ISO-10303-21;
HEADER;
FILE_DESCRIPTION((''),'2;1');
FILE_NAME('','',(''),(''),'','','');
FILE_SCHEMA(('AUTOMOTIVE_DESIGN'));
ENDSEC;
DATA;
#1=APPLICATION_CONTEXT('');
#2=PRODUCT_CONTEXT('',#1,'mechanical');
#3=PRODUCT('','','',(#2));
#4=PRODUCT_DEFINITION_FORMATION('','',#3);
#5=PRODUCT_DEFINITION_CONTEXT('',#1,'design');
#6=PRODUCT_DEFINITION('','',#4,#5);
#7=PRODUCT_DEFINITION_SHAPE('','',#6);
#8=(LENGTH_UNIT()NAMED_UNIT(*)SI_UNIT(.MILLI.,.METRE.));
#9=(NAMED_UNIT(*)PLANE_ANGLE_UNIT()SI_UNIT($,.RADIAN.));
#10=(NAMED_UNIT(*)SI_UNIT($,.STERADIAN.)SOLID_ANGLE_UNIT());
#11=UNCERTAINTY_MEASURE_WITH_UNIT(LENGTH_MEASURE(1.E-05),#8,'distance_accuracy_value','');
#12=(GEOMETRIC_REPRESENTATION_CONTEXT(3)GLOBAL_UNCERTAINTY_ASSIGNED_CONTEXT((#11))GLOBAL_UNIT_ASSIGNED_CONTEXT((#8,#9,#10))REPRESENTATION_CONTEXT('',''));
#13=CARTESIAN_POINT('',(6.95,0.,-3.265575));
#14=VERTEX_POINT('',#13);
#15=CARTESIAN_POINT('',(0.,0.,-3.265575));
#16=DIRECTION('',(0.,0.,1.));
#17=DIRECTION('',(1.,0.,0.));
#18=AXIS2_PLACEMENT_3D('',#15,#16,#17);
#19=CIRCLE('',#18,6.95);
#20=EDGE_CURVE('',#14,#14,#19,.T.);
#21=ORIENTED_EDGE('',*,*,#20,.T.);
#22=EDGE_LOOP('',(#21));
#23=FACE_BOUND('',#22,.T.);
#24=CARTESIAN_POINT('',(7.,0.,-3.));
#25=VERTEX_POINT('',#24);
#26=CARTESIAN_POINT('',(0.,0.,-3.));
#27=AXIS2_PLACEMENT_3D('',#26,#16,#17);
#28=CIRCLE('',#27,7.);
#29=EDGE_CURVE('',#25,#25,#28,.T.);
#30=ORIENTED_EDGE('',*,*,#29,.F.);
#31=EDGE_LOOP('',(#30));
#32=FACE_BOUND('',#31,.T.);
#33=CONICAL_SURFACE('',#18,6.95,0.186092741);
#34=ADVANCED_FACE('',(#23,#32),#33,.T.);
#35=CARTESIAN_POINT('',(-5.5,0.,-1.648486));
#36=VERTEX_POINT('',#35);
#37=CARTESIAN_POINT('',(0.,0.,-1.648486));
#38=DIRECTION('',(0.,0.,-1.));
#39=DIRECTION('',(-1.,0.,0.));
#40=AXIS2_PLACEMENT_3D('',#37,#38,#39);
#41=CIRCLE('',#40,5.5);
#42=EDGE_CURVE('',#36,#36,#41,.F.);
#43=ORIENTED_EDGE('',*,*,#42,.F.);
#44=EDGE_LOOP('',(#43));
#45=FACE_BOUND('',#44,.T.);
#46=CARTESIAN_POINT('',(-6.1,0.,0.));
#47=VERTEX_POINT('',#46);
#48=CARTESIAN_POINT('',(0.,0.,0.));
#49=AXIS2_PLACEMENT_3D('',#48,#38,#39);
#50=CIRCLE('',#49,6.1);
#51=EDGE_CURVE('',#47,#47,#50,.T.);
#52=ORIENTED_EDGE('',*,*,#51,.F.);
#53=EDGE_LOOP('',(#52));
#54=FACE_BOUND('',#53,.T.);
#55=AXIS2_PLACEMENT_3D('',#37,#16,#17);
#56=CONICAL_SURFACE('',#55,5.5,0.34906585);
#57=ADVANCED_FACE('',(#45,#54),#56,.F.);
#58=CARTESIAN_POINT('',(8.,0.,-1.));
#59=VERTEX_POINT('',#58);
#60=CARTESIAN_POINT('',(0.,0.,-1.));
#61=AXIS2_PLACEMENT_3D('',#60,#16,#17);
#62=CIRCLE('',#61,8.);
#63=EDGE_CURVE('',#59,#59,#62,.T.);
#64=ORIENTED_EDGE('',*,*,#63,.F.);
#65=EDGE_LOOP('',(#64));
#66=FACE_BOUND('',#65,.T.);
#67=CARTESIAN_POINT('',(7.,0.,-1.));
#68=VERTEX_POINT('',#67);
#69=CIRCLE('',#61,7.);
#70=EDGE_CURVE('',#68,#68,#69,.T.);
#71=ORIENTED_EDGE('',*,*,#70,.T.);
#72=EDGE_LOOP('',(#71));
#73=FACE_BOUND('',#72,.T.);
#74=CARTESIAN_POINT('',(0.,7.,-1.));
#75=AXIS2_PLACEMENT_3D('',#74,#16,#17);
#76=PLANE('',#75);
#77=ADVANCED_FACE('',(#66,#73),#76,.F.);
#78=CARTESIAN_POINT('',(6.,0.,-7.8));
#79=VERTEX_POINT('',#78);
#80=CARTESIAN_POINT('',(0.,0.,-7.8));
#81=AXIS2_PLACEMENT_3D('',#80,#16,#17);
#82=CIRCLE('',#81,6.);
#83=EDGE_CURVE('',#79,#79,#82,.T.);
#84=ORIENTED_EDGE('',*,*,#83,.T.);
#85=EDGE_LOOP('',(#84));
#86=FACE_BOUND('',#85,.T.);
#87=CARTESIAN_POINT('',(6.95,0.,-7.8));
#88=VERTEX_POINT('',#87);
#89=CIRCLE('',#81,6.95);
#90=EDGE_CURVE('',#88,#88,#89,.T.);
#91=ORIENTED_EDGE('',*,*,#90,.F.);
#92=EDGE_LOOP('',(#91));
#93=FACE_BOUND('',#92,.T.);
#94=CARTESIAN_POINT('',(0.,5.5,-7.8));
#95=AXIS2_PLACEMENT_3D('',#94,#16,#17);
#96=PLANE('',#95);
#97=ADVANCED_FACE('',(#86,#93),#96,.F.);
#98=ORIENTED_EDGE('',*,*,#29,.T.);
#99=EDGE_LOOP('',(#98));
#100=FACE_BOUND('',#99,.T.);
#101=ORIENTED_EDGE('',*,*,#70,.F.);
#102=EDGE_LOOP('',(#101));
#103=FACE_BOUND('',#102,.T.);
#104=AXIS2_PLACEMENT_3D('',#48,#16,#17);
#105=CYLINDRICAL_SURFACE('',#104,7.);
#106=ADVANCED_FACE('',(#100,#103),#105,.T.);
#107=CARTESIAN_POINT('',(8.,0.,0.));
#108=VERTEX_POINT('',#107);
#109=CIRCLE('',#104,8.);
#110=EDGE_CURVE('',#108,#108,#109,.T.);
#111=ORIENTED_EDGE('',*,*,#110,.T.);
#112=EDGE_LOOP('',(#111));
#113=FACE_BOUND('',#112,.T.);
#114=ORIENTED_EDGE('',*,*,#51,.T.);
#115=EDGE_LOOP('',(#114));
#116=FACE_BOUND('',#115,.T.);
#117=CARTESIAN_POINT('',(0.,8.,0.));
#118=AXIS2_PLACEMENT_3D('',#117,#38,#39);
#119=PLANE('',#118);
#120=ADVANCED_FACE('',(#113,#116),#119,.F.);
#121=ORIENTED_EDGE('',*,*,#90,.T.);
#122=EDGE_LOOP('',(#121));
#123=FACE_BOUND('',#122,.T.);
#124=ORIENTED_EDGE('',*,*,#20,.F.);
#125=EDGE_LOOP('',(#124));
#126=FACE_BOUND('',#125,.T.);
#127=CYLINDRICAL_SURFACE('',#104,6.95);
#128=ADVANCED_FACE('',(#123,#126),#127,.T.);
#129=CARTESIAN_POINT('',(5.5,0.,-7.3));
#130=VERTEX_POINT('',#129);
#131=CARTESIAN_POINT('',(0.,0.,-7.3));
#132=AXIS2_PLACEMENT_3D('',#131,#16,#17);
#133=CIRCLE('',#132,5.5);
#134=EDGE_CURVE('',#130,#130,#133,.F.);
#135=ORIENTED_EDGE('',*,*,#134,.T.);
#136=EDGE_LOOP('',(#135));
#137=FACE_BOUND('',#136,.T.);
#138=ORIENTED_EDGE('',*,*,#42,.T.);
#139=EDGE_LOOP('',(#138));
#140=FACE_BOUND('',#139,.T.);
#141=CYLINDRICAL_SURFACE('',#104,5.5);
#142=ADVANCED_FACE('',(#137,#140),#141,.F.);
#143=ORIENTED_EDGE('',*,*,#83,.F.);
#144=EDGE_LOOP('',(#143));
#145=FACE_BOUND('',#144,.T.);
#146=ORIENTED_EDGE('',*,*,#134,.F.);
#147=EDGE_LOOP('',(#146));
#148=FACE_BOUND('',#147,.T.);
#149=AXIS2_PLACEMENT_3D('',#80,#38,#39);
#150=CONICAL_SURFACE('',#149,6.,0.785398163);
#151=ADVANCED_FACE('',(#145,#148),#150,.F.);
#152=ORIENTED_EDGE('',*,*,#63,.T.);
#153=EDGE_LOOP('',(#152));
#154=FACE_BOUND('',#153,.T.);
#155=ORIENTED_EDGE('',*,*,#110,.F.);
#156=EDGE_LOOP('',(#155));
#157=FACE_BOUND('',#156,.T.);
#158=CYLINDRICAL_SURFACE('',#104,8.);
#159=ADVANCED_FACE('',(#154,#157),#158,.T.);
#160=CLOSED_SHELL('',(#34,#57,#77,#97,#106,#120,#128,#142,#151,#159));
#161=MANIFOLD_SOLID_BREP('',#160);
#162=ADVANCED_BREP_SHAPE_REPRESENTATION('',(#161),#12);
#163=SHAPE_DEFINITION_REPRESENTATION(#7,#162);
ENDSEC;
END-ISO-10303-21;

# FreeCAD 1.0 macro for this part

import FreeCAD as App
import Part
import Sketcher
from FreeCAD import Vector


def edges_at(feature, points):
    """Names of the edges that pass closest to the given points."""
    edges = feature.Shape.Edges
    near = lambda p: min(range(len(edges)), key=lambda i: edges[i].distToShape(Part.Vertex(*p))[0])
    return sorted({f"Edge{near(p) + 1}" for p in points})


def add_polygon(sketch, points):
    """Adds a closed chain of lines whose ends are joined by coincident constraints."""
    first, n = sketch.GeometryCount, len(points)
    for a, b in zip(points, points[1:] + points[:1]):
        sketch.addGeometry(Part.LineSegment(App.Vector(*a, 0), App.Vector(*b, 0)), False)
    for i in range(n):
        sketch.addConstraint(Sketcher.Constraint("Coincident", first + i, 2, first + (i + 1) % n, 1))

doc = App.newDocument("Part")
body = doc.addObject("PartDesign::Body", "Body")

sketch1 = body.newObject("Sketcher::SketchObject", "Sketch")
sketch1.AttachmentSupport = (doc.getObject("YZ_Plane"), [""])
sketch1.MapMode = "FlatFace"
add_polygon(sketch1, [(5.5, 0), (5.5, -7.8), (6.95, -7.8), (6.95, -3.27), (7, -3), (7, -1), (8, -1), (8, 0)])
sketch1.addConstraint(Sketcher.Constraint("Vertical", 0))
sketch1.addConstraint(Sketcher.Constraint("Horizontal", 1))
sketch1.addConstraint(Sketcher.Constraint("Vertical", 2))
sketch1.addConstraint(Sketcher.Constraint("Vertical", 4))
sketch1.addConstraint(Sketcher.Constraint("Horizontal", 5))
sketch1.addConstraint(Sketcher.Constraint("Vertical", 6))
sketch1.addConstraint(Sketcher.Constraint("Horizontal", 7))
sketch1.addConstraint(Sketcher.Constraint("PointOnObject", 6, 2, -1))
sketch1.addConstraint(Sketcher.Constraint("Equal", 5, 6))
sketch1.addConstraint(Sketcher.Constraint("DistanceX", 5, 1, 5, 2, 1.0))
sketch1.addConstraint(Sketcher.Constraint("DistanceY", 4, 1, 4, 2, 2.0))
sketch1.addConstraint(Sketcher.Constraint("DistanceX", 7, 2, 7, 1, 2.5))
sketch1.addConstraint(Sketcher.Constraint("DistanceY", 0, 2, 0, 1, 7.8))
sketch1.addConstraint(Sketcher.Constraint("DistanceX", -1, 1, 3, 2, 7.0))
sketch1.addConstraint(Sketcher.Constraint("DistanceX", 1, 1, 1, 2, 1.45))
sketch1.addConstraint(Sketcher.Constraint("Distance", 3, 0.27024))
revolution = body.newObject("PartDesign::Revolution", "Revolution")
revolution.Profile = sketch1
revolution.ReferenceAxis = (sketch1, ["V_Axis"])
revolution.Angle = 360
doc.recompute()

chamfer = body.newObject("PartDesign::Chamfer", "Chamfer")
chamfer.Base = (revolution, edges_at(revolution, [(0, -5.5, -7.8)]))
chamfer.Size = 0.5
doc.recompute()

chamfer2 = body.newObject("PartDesign::Chamfer", "Chamfer001")
chamfer2.Base = (chamfer, edges_at(chamfer, [(0, -5.5, 0)]))
chamfer2.ChamferType = "Two distances"
chamfer2.Size = 0.6
chamfer2.Size2 = 1.648486
chamfer2.FlipDirection = True

doc.recompute()
